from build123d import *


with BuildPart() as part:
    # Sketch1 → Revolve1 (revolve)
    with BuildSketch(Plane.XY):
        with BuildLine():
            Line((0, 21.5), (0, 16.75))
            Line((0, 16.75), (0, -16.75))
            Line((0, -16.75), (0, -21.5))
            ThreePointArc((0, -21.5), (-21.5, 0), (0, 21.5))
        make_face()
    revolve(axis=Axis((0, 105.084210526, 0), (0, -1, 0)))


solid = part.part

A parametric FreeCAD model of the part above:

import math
import FreeCAD as App
import Part
import Sketcher

V = App.Vector
Q = App.Units.Quantity

doc = App.newDocument("Part")
body = doc.addObject("PartDesign::Body", "Body")

sketch1 = body.newObject("Sketcher::SketchObject", "Sketch")
sketch1.AttachmentSupport = (doc.getObject("XY_Plane"), [""])
sketch1.MapMode = "FlatFace"
sketch1.addGeometry([
    Part.LineSegment(V(0, -22, 0), V(0, 22, 0)),
    Part.ArcOfCircle(Part.Circle(V(0, 0, 0), V(0, 0, 1), 22), math.radians(90), math.radians(270)),
], False)
sketch1.addConstraint([
    Sketcher.Constraint("Coincident", 0, 1, 1, 2),
    Sketcher.Constraint("Coincident", 1, 1, 0, 2),
    Sketcher.Constraint("Vertical", 0),
    Sketcher.Constraint("Coincident", 1, 3, -1, 1),
    Sketcher.Constraint("PointOnObject", 0, 1, -2),
    Sketcher.Constraint("Radius", 1, Q("21.5 mm")),
])
revolution = body.newObject("PartDesign::Revolution", "Revolution")
revolution.Profile = sketch1
revolution.ReferenceAxis = (sketch1, ["V_Axis"])
revolution.Angle = 360

doc.recompute()
